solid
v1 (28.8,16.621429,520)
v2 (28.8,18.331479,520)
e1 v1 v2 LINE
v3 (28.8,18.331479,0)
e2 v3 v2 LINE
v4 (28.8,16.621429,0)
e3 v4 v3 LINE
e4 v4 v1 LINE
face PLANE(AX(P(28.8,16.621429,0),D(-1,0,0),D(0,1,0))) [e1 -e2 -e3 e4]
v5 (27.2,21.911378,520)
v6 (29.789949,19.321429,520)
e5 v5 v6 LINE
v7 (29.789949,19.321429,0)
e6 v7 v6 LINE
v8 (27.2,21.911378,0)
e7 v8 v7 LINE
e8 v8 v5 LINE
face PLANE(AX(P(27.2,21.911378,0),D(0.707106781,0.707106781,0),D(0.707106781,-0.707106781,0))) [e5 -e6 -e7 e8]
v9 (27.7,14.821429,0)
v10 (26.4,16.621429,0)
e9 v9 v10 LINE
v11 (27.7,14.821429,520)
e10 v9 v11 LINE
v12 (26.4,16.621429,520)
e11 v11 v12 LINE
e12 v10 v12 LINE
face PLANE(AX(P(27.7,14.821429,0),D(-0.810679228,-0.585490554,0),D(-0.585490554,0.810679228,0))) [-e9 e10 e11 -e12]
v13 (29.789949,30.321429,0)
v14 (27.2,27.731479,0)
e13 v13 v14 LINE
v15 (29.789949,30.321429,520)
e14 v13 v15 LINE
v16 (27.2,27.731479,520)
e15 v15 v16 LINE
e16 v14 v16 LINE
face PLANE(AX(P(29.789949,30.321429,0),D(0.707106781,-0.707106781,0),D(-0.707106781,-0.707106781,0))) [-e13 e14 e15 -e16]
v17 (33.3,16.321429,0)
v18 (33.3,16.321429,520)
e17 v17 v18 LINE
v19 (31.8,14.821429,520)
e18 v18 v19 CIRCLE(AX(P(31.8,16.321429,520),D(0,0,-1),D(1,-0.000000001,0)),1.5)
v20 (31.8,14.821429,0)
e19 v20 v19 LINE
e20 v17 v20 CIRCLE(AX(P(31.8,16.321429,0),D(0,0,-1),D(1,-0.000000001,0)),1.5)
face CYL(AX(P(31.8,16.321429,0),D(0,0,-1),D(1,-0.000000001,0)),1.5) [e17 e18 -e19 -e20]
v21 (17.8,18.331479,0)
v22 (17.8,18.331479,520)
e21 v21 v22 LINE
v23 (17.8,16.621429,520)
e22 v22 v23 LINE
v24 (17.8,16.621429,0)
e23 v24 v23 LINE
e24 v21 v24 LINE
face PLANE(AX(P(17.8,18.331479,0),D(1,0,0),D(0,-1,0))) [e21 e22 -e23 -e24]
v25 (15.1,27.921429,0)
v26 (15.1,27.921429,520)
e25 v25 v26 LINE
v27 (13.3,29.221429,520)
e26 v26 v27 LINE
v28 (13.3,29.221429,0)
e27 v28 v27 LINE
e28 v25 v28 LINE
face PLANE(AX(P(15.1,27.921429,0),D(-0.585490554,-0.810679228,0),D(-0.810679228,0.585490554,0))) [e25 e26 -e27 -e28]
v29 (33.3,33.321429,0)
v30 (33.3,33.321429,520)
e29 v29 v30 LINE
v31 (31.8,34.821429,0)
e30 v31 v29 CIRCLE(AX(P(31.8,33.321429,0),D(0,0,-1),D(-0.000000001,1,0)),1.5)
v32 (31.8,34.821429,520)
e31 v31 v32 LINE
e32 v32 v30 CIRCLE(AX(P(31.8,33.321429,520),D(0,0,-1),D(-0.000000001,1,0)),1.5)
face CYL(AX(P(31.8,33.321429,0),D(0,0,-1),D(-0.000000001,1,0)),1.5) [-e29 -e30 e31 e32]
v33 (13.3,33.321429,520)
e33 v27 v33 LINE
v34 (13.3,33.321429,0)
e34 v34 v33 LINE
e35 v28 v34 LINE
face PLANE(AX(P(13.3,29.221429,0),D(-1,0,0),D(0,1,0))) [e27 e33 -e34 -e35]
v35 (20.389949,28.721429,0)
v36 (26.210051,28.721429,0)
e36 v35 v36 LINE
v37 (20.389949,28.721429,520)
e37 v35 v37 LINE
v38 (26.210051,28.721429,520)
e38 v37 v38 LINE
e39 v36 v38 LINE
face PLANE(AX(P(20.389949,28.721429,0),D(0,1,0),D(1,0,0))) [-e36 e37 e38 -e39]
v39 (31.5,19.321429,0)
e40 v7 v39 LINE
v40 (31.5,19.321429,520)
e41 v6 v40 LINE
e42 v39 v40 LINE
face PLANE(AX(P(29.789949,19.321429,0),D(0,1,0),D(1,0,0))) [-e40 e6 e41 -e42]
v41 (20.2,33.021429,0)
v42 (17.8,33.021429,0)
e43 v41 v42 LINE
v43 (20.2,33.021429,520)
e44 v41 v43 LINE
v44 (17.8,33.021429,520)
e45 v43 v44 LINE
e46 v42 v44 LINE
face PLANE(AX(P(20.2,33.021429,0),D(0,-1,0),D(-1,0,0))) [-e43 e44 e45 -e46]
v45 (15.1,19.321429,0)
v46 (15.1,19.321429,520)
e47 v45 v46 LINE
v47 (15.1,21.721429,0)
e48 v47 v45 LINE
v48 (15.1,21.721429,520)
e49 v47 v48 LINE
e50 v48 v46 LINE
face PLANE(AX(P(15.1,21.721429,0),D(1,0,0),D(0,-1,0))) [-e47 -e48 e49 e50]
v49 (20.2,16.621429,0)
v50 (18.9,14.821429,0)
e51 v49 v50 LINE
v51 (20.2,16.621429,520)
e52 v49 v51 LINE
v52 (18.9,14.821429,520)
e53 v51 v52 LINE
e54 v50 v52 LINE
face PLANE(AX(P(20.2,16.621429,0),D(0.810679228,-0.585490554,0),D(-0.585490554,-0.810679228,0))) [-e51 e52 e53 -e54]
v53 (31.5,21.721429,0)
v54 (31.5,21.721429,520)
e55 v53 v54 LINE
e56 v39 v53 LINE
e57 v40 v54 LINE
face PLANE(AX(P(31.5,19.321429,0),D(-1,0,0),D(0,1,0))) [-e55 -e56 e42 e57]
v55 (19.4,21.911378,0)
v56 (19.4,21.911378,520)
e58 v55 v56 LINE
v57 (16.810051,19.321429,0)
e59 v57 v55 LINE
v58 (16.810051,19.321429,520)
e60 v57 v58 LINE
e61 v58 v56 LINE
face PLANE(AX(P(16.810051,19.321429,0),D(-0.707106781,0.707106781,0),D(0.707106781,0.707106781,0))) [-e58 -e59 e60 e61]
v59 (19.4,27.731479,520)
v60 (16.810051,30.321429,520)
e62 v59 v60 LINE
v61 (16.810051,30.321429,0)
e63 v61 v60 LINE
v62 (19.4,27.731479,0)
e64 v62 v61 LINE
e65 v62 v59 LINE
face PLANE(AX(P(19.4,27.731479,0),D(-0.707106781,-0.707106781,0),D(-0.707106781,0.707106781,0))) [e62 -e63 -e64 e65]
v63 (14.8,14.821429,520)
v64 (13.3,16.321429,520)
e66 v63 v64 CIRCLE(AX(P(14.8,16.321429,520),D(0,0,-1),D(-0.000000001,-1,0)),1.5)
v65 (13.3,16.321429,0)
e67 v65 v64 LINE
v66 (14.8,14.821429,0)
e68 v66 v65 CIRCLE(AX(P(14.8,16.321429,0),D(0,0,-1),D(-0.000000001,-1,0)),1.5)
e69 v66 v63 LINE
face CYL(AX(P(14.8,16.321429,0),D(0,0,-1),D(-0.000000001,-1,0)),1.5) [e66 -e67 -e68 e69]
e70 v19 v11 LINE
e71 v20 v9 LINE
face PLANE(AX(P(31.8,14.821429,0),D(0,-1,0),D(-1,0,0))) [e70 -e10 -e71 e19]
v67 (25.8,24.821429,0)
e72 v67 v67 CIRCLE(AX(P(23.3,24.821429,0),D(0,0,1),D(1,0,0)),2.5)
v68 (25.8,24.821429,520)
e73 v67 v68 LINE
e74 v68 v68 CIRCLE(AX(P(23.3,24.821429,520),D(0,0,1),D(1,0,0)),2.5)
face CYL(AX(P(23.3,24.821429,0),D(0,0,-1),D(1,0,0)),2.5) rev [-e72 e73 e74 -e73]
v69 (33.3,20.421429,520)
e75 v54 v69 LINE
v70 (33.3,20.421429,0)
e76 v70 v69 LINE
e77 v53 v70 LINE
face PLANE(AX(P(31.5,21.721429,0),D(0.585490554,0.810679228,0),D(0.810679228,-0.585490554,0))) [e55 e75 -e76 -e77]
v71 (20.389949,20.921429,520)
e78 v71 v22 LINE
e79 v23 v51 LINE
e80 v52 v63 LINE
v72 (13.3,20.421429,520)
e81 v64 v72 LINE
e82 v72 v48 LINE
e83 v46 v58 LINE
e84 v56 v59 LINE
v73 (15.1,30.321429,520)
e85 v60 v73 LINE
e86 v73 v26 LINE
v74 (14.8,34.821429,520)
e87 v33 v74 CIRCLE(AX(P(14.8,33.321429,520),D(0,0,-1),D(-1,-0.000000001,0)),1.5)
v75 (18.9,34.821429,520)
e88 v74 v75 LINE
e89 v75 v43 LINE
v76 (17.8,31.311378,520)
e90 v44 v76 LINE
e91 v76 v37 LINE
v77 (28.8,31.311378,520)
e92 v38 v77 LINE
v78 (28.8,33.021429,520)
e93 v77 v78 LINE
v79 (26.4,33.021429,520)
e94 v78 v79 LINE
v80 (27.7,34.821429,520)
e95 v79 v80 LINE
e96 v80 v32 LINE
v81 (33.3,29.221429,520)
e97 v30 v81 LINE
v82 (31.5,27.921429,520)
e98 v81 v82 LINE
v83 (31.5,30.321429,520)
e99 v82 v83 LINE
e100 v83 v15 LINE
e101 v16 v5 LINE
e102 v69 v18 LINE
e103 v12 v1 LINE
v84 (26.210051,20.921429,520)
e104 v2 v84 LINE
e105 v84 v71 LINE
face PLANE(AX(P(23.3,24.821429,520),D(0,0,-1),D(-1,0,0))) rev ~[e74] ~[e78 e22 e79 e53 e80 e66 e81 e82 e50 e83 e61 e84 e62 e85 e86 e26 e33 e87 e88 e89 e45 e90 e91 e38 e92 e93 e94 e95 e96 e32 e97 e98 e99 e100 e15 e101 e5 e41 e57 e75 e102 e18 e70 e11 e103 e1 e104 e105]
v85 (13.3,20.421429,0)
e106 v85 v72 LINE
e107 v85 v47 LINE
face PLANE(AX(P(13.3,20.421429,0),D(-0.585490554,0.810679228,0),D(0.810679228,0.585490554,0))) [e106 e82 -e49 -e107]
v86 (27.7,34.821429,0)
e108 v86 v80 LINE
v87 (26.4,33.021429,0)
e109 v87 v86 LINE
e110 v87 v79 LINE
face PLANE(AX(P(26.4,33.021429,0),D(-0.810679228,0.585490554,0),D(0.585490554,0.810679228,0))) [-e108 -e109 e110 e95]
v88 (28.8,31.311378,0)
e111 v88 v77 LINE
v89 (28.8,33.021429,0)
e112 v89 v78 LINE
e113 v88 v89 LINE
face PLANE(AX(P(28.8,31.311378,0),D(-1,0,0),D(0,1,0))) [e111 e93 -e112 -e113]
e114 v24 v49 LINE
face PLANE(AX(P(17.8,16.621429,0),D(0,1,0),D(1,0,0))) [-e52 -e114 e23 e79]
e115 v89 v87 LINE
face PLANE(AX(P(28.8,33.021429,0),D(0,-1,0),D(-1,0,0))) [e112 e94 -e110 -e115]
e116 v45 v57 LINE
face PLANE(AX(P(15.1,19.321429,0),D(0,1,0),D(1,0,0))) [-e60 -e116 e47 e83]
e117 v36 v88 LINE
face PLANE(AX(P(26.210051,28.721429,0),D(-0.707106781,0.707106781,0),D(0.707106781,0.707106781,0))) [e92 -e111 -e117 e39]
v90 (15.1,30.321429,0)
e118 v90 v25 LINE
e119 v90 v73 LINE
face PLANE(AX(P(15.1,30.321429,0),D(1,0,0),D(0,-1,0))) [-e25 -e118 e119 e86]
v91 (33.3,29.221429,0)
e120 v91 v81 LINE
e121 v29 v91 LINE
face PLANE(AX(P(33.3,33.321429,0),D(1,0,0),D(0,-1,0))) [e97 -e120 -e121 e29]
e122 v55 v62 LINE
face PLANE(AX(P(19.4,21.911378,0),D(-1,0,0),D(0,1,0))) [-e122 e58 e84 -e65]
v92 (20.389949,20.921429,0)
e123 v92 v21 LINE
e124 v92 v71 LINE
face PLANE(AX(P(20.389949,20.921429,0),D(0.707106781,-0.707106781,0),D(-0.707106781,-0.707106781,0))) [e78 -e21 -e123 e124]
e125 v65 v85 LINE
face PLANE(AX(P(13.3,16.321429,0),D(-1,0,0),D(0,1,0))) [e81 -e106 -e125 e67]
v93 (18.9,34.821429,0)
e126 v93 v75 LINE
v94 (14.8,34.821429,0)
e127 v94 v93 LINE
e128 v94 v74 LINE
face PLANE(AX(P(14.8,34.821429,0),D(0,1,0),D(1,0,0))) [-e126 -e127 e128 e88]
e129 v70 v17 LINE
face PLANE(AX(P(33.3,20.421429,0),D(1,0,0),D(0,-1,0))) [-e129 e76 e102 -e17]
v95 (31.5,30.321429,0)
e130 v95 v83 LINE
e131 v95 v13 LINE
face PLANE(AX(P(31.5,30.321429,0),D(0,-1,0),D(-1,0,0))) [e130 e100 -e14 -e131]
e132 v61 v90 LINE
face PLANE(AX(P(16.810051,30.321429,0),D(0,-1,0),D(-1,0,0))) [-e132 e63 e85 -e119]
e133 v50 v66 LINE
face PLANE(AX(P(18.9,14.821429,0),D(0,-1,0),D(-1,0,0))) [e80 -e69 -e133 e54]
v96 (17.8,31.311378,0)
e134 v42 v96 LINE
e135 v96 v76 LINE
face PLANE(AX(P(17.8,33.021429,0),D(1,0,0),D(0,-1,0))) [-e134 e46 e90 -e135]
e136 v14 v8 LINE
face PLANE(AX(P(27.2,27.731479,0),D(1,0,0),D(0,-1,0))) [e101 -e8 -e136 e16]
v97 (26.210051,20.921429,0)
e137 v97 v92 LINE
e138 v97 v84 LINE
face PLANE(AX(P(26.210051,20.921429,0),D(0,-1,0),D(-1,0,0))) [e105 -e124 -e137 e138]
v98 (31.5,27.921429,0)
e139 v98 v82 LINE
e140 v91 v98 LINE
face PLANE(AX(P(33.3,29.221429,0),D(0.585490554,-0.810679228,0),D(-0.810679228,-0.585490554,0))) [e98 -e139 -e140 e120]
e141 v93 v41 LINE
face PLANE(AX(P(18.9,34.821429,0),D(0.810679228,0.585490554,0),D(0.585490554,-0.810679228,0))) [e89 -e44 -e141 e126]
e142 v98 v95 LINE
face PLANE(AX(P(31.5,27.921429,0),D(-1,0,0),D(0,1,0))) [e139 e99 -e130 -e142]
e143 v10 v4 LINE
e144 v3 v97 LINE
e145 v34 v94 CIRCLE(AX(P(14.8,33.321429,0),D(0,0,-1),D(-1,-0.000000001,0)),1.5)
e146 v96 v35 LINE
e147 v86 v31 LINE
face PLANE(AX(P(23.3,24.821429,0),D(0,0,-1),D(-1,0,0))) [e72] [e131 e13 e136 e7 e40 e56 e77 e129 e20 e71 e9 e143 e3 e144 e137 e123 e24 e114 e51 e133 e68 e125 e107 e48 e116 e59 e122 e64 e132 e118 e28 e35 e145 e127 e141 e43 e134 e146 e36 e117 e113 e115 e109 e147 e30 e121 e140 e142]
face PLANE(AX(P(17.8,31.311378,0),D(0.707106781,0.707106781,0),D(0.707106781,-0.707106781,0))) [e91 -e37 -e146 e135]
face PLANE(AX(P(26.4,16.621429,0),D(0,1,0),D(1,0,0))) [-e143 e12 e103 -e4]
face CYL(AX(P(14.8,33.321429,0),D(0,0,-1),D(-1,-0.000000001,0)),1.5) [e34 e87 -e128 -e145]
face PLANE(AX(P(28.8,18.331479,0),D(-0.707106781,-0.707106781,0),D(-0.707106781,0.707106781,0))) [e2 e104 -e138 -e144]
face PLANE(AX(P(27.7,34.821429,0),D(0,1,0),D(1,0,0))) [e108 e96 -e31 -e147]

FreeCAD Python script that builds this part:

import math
import FreeCAD as App
import Part
import Sketcher

doc = App.newDocument("Part")
body = doc.addObject("PartDesign::Body", "Body")

sketch1 = body.newObject("Sketcher::SketchObject", "Sketch")
sketch1.AttachmentSupport = (doc.getObject("XY_Plane"), [""])
sketch1.MapMode = "FlatFace"
sketch1.addGeometry([
    Part.LineSegment(App.Vector(18.9, 34.821429, 0), App.Vector(14.8, 34.821429, 0)),
    Part.ArcOfCircle(Part.Circle(App.Vector(14.8, 33.321429, 0), App.Vector(0, 0, 1), 1.5), math.radians(90), math.radians(180)),
    Part.LineSegment(App.Vector(13.3, 33.321429, 0), App.Vector(13.3, 29.221429, 0)),
    Part.LineSegment(App.Vector(13.3, 29.221429, 0), App.Vector(15.1, 27.921429, 0)),
    Part.LineSegment(App.Vector(15.1, 27.921429, 0), App.Vector(15.1, 30.321429, 0)),
    Part.LineSegment(App.Vector(15.1, 30.321429, 0), App.Vector(16.810051, 30.321429, 0)),
    Part.LineSegment(App.Vector(16.810051, 30.321429, 0), App.Vector(19.4, 27.731479, 0)),
    Part.LineSegment(App.Vector(19.4, 27.731479, 0), App.Vector(19.4, 21.911378, 0)),
    Part.LineSegment(App.Vector(19.4, 21.911378, 0), App.Vector(16.810051, 19.321429, 0)),
    Part.LineSegment(App.Vector(16.810051, 19.321429, 0), App.Vector(15.1, 19.321429, 0)),
    Part.LineSegment(App.Vector(15.1, 19.321429, 0), App.Vector(15.1, 21.721429, 0)),
    Part.LineSegment(App.Vector(15.1, 21.721429, 0), App.Vector(13.3, 20.421429, 0)),
    Part.LineSegment(App.Vector(13.3, 20.421429, 0), App.Vector(13.3, 16.321429, 0)),
    Part.ArcOfCircle(Part.Circle(App.Vector(14.8, 16.321429, 0), App.Vector(0, 0, 1), 1.5), math.radians(-180), math.radians(-90)),
    Part.LineSegment(App.Vector(14.8, 14.821429, 0), App.Vector(18.9, 14.821429, 0)),
    Part.LineSegment(App.Vector(18.9, 14.821429, 0), App.Vector(20.2, 16.621429, 0)),
    Part.LineSegment(App.Vector(20.2, 16.621429, 0), App.Vector(17.8, 16.621429, 0)),
    Part.LineSegment(App.Vector(17.8, 16.621429, 0), App.Vector(17.8, 18.331479, 0)),
    Part.LineSegment(App.Vector(17.8, 18.331479, 0), App.Vector(20.389949, 20.921429, 0)),
    Part.LineSegment(App.Vector(20.389949, 20.921429, 0), App.Vector(26.210051, 20.921429, 0)),
    Part.LineSegment(App.Vector(26.210051, 20.921429, 0), App.Vector(28.8, 18.331479, 0)),
    Part.LineSegment(App.Vector(28.8, 18.331479, 0), App.Vector(28.8, 16.621429, 0)),
    Part.LineSegment(App.Vector(28.8, 16.621429, 0), App.Vector(26.4, 16.621429, 0)),
    Part.LineSegment(App.Vector(26.4, 16.621429, 0), App.Vector(27.7, 14.821429, 0)),
    Part.LineSegment(App.Vector(27.7, 14.821429, 0), App.Vector(31.8, 14.821429, 0)),
    Part.ArcOfCircle(Part.Circle(App.Vector(31.8, 16.321429, 0), App.Vector(0, 0, 1), 1.5), math.radians(-90), math.radians(0)),
    Part.LineSegment(App.Vector(33.3, 16.321429, 0), App.Vector(33.3, 20.421429, 0)),
    Part.LineSegment(App.Vector(33.3, 20.421429, 0), App.Vector(31.5, 21.721429, 0)),
    Part.LineSegment(App.Vector(31.5, 21.721429, 0), App.Vector(31.5, 19.321429, 0)),
    Part.LineSegment(App.Vector(31.5, 19.321429, 0), App.Vector(29.789949, 19.321429, 0)),
    Part.LineSegment(App.Vector(29.789949, 19.321429, 0), App.Vector(27.2, 21.911378, 0)),
    Part.LineSegment(App.Vector(27.2, 21.911378, 0), App.Vector(27.2, 27.731479, 0)),
    Part.LineSegment(App.Vector(27.2, 27.731479, 0), App.Vector(29.789949, 30.321429, 0)),
    Part.LineSegment(App.Vector(29.789949, 30.321429, 0), App.Vector(31.5, 30.321429, 0)),
    Part.LineSegment(App.Vector(31.5, 30.321429, 0), App.Vector(31.5, 27.921429, 0)),
    Part.LineSegment(App.Vector(31.5, 27.921429, 0), App.Vector(33.3, 29.221429, 0)),
    Part.LineSegment(App.Vector(33.3, 29.221429, 0), App.Vector(33.3, 33.321429, 0)),
    Part.ArcOfCircle(Part.Circle(App.Vector(31.8, 33.321429, 0), App.Vector(0, 0, 1), 1.5), math.radians(0), math.radians(90)),
    Part.LineSegment(App.Vector(31.8, 34.821429, 0), App.Vector(27.7, 34.821429, 0)),
    Part.LineSegment(App.Vector(27.7, 34.821429, 0), App.Vector(26.4, 33.021429, 0)),
    Part.LineSegment(App.Vector(26.4, 33.021429, 0), App.Vector(28.8, 33.021429, 0)),
    Part.LineSegment(App.Vector(28.8, 33.021429, 0), App.Vector(28.8, 31.311378, 0)),
    Part.LineSegment(App.Vector(28.8, 31.311378, 0), App.Vector(26.210051, 28.721429, 0)),
    Part.LineSegment(App.Vector(26.210051, 28.721429, 0), App.Vector(20.389949, 28.721429, 0)),
    Part.LineSegment(App.Vector(20.389949, 28.721429, 0), App.Vector(17.8, 31.311378, 0)),
    Part.LineSegment(App.Vector(17.8, 31.311378, 0), App.Vector(17.8, 33.021429, 0)),
    Part.LineSegment(App.Vector(17.8, 33.021429, 0), App.Vector(20.2, 33.021429, 0)),
    Part.LineSegment(App.Vector(20.2, 33.021429, 0), App.Vector(18.9, 34.821429, 0)),
    Part.Circle(App.Vector(23.3, 24.821429, 0), App.Vector(0, 0, 1), 2.5),
], False)
sketch1.addConstraint([
    Sketcher.Constraint("Tangent", 0, 2, 1, 1),
    Sketcher.Constraint("Tangent", 1, 2, 2, 1),
    Sketcher.Constraint("Coincident", 2, 2, 3, 1),
    Sketcher.Constraint("Coincident", 3, 2, 4, 1),
    Sketcher.Constraint("Coincident", 4, 2, 5, 1),
    Sketcher.Constraint("Coincident", 5, 2, 6, 1),
    Sketcher.Constraint("Coincident", 6, 2, 7, 1),
    Sketcher.Constraint("Coincident", 7, 2, 8, 1),
    Sketcher.Constraint("Coincident", 8, 2, 9, 1),
    Sketcher.Constraint("Coincident", 9, 2, 10, 1),
    Sketcher.Constraint("Coincident", 10, 2, 11, 1),
    Sketcher.Constraint("Coincident", 11, 2, 12, 1),
    Sketcher.Constraint("Tangent", 12, 2, 13, 1),
    Sketcher.Constraint("Tangent", 13, 2, 14, 1),
    Sketcher.Constraint("Coincident", 14, 2, 15, 1),
    Sketcher.Constraint("Coincident", 15, 2, 16, 1),
    Sketcher.Constraint("Coincident", 16, 2, 17, 1),
    Sketcher.Constraint("Coincident", 17, 2, 18, 1),
    Sketcher.Constraint("Coincident", 18, 2, 19, 1),
    Sketcher.Constraint("Coincident", 19, 2, 20, 1),
    Sketcher.Constraint("Coincident", 20, 2, 21, 1),
    Sketcher.Constraint("Coincident", 21, 2, 22, 1),
    Sketcher.Constraint("Coincident", 22, 2, 23, 1),
    Sketcher.Constraint("Coincident", 23, 2, 24, 1),
    Sketcher.Constraint("Tangent", 24, 2, 25, 1),
    Sketcher.Constraint("Tangent", 25, 2, 26, 1),
    Sketcher.Constraint("Coincident", 26, 2, 27, 1),
    Sketcher.Constraint("Coincident", 27, 2, 28, 1),
    Sketcher.Constraint("Coincident", 28, 2, 29, 1),
    Sketcher.Constraint("Coincident", 29, 2, 30, 1),
    Sketcher.Constraint("Coincident", 30, 2, 31, 1),
    Sketcher.Constraint("Coincident", 31, 2, 32, 1),
    Sketcher.Constraint("Coincident", 32, 2, 33, 1),
    Sketcher.Constraint("Coincident", 33, 2, 34, 1),
    Sketcher.Constraint("Coincident", 34, 2, 35, 1),
    Sketcher.Constraint("Coincident", 35, 2, 36, 1),
    Sketcher.Constraint("Tangent", 36, 2, 37, 1),
    Sketcher.Constraint("Tangent", 37, 2, 38, 1),
    Sketcher.Constraint("Coincident", 38, 2, 39, 1),
    Sketcher.Constraint("Coincident", 39, 2, 40, 1),
    Sketcher.Constraint("Coincident", 40, 2, 41, 1),
    Sketcher.Constraint("Coincident", 41, 2, 42, 1),
    Sketcher.Constraint("Coincident", 42, 2, 43, 1),
    Sketcher.Constraint("Coincident", 43, 2, 44, 1),
    Sketcher.Constraint("Coincident", 44, 2, 45, 1),
    Sketcher.Constraint("Coincident", 45, 2, 46, 1),
    Sketcher.Constraint("Coincident", 46, 2, 47, 1),
    Sketcher.Constraint("Coincident", 47, 2, 0, 1),
    Sketcher.Constraint("Horizontal", 0),
    Sketcher.Constraint("Vertical", 2),
    Sketcher.Constraint("Vertical", 4),
    Sketcher.Constraint("Horizontal", 5),
    Sketcher.Constraint("Vertical", 7),
    Sketcher.Constraint("Horizontal", 9),
    Sketcher.Constraint("Vertical", 10),
    Sketcher.Constraint("Vertical", 12),
    Sketcher.Constraint("Horizontal", 14),
    Sketcher.Constraint("Horizontal", 16),
    Sketcher.Constraint("Vertical", 17),
    Sketcher.Constraint("Horizontal", 19),
    Sketcher.Constraint("Vertical", 21),
    Sketcher.Constraint("Horizontal", 22),
    Sketcher.Constraint("Horizontal", 24),
    Sketcher.Constraint("Vertical", 26),
    Sketcher.Constraint("Vertical", 28),
    Sketcher.Constraint("Horizontal", 29),
    Sketcher.Constraint("Vertical", 31),
    Sketcher.Constraint("Horizontal", 33),
    Sketcher.Constraint("Vertical", 34),
    Sketcher.Constraint("Vertical", 36),
    Sketcher.Constraint("Horizontal", 38),
    Sketcher.Constraint("Horizontal", 40),
    Sketcher.Constraint("Vertical", 41),
    Sketcher.Constraint("Horizontal", 43),
    Sketcher.Constraint("Vertical", 45),
    Sketcher.Constraint("Horizontal", 46),
    Sketcher.Constraint("Equal", 1, 13),
    Sketcher.Constraint("Equal", 13, 25),
    Sketcher.Constraint("Equal", 25, 37),
    Sketcher.Constraint("Perpendicular", 6, 8),
    Sketcher.Constraint("Perpendicular", 3, 15),
    Sketcher.Constraint("Parallel", 8, 18),
    Sketcher.Constraint("Perpendicular", 18, 20),
    Sketcher.Constraint("Perpendicular", 11, 23),
    Sketcher.Constraint("Perpendicular", 15, 27),
    Sketcher.Constraint("Parallel", 20, 30),
    Sketcher.Constraint("Perpendicular", 30, 32),
    Sketcher.Constraint("Perpendicular", 23, 35),
    Sketcher.Constraint("Perpendicular", 27, 39),
    Sketcher.Constraint("Parallel", 32, 42),
    Sketcher.Constraint("Perpendicular", 42, 44),
    Sketcher.Constraint("Perpendicular", 35, 47),
    Sketcher.Constraint("Horizontal", 13, 3, 25, 3),
    Sketcher.Constraint("Horizontal", 1, 3, 37, 3),
    Sketcher.Constraint("Horizontal", 17, 2, 20, 2),
    Sketcher.Constraint("Horizontal", 16, 2, 21, 2),
    Sketcher.Constraint("Horizontal", 11, 2, 26, 2),
    Sketcher.Constraint("Horizontal", 10, 2, 27, 2),
    Sketcher.Constraint("Horizontal", 9, 2, 28, 2),
    Sketcher.Constraint("Horizontal", 7, 2, 30, 2),
    Sketcher.Constraint("Horizontal", 6, 2, 31, 2),
    Sketcher.Constraint("Horizontal", 5, 2, 32, 2),
    Sketcher.Constraint("Horizontal", 3, 2, 34, 2),
    Sketcher.Constraint("Horizontal", 2, 2, 35, 2),
    Sketcher.Constraint("Horizontal", 41, 2, 44, 2),
    Sketcher.Constraint("Horizontal", 40, 2, 45, 2),
    Sketcher.Constraint("Vertical", 1, 3, 13, 3),
    Sketcher.Constraint("Vertical", 25, 3, 37, 3),
    Sketcher.Constraint("Vertical", 5, 2, 8, 2),
    Sketcher.Constraint("Vertical", 4, 2, 9, 2),
    Sketcher.Constraint("Vertical", 29, 2, 32, 2),
    Sketcher.Constraint("Vertical", 28, 2, 33, 2),
    Sketcher.Constraint("Vertical", 23, 2, 38, 2),
    Sketcher.Constraint("Vertical", 22, 2, 39, 2),
    Sketcher.Constraint("Vertical", 21, 2, 40, 2),
    Sketcher.Constraint("Vertical", 19, 2, 42, 2),
    Sketcher.Constraint("Vertical", 18, 2, 43, 2),
    Sketcher.Constraint("Vertical", 15, 2, 46, 2),
    Sketcher.Constraint("Equal", 16, 22),
    Sketcher.Constraint("Equal", 14, 24),
    Sketcher.Constraint("Equal", 9, 29),
    Sketcher.Constraint("Equal", 38, 2),
    Sketcher.Constraint("Equal", 46, 4),
    Sketcher.Constraint("Equal", 43, 7),
    Sketcher.Constraint("Equal", 4, 10),
    Sketcher.Constraint("Equal", 2, 12),
    Sketcher.Constraint("Equal", 33, 17),
    Sketcher.Constraint("Equal", 21, 41),
    Sketcher.Constraint("Equal", 11, 15),
    Sketcher.Constraint("Equal", 8, 18),
    Sketcher.Constraint("Diameter", 48, 5.0),
    Sketcher.Constraint("Radius", 1, 1.5),
    Sketcher.Constraint("DistanceX", 0, 2, 0, 1, 4.1),
    Sketcher.Constraint("DistanceX", 16, 2, 16, 1, 2.4),
    Sketcher.Constraint("DistanceY", 13, 3, 1, 3, 17.0),
    Sketcher.Constraint("DistanceY", 48, 3, 0, 2, 10.0),
    Sketcher.Constraint("DistanceX", 1, 2, 48, 3, 10.0),
    Sketcher.Constraint("DistanceY", 4, 2, 1, 3, 3.0),
    Sketcher.Constraint("DistanceX", -1, 1, 1, 3, 14.8),
    Sketcher.Constraint("DistanceX", -1, 1, 3, 2, 15.1),
    Sketcher.Constraint("DistanceX", -1, 1, 6, 2, 19.4),
    Sketcher.Constraint("DistanceX", 19, 1, 19, 2, 5.820101),
    Sketcher.Constraint("DistanceY", -1, 1, 1, 3, 33.321429),
])
pad1 = body.newObject("PartDesign::Pad", "Pad")
pad1.Profile = sketch1
pad1.Length = 520

doc.recompute()
